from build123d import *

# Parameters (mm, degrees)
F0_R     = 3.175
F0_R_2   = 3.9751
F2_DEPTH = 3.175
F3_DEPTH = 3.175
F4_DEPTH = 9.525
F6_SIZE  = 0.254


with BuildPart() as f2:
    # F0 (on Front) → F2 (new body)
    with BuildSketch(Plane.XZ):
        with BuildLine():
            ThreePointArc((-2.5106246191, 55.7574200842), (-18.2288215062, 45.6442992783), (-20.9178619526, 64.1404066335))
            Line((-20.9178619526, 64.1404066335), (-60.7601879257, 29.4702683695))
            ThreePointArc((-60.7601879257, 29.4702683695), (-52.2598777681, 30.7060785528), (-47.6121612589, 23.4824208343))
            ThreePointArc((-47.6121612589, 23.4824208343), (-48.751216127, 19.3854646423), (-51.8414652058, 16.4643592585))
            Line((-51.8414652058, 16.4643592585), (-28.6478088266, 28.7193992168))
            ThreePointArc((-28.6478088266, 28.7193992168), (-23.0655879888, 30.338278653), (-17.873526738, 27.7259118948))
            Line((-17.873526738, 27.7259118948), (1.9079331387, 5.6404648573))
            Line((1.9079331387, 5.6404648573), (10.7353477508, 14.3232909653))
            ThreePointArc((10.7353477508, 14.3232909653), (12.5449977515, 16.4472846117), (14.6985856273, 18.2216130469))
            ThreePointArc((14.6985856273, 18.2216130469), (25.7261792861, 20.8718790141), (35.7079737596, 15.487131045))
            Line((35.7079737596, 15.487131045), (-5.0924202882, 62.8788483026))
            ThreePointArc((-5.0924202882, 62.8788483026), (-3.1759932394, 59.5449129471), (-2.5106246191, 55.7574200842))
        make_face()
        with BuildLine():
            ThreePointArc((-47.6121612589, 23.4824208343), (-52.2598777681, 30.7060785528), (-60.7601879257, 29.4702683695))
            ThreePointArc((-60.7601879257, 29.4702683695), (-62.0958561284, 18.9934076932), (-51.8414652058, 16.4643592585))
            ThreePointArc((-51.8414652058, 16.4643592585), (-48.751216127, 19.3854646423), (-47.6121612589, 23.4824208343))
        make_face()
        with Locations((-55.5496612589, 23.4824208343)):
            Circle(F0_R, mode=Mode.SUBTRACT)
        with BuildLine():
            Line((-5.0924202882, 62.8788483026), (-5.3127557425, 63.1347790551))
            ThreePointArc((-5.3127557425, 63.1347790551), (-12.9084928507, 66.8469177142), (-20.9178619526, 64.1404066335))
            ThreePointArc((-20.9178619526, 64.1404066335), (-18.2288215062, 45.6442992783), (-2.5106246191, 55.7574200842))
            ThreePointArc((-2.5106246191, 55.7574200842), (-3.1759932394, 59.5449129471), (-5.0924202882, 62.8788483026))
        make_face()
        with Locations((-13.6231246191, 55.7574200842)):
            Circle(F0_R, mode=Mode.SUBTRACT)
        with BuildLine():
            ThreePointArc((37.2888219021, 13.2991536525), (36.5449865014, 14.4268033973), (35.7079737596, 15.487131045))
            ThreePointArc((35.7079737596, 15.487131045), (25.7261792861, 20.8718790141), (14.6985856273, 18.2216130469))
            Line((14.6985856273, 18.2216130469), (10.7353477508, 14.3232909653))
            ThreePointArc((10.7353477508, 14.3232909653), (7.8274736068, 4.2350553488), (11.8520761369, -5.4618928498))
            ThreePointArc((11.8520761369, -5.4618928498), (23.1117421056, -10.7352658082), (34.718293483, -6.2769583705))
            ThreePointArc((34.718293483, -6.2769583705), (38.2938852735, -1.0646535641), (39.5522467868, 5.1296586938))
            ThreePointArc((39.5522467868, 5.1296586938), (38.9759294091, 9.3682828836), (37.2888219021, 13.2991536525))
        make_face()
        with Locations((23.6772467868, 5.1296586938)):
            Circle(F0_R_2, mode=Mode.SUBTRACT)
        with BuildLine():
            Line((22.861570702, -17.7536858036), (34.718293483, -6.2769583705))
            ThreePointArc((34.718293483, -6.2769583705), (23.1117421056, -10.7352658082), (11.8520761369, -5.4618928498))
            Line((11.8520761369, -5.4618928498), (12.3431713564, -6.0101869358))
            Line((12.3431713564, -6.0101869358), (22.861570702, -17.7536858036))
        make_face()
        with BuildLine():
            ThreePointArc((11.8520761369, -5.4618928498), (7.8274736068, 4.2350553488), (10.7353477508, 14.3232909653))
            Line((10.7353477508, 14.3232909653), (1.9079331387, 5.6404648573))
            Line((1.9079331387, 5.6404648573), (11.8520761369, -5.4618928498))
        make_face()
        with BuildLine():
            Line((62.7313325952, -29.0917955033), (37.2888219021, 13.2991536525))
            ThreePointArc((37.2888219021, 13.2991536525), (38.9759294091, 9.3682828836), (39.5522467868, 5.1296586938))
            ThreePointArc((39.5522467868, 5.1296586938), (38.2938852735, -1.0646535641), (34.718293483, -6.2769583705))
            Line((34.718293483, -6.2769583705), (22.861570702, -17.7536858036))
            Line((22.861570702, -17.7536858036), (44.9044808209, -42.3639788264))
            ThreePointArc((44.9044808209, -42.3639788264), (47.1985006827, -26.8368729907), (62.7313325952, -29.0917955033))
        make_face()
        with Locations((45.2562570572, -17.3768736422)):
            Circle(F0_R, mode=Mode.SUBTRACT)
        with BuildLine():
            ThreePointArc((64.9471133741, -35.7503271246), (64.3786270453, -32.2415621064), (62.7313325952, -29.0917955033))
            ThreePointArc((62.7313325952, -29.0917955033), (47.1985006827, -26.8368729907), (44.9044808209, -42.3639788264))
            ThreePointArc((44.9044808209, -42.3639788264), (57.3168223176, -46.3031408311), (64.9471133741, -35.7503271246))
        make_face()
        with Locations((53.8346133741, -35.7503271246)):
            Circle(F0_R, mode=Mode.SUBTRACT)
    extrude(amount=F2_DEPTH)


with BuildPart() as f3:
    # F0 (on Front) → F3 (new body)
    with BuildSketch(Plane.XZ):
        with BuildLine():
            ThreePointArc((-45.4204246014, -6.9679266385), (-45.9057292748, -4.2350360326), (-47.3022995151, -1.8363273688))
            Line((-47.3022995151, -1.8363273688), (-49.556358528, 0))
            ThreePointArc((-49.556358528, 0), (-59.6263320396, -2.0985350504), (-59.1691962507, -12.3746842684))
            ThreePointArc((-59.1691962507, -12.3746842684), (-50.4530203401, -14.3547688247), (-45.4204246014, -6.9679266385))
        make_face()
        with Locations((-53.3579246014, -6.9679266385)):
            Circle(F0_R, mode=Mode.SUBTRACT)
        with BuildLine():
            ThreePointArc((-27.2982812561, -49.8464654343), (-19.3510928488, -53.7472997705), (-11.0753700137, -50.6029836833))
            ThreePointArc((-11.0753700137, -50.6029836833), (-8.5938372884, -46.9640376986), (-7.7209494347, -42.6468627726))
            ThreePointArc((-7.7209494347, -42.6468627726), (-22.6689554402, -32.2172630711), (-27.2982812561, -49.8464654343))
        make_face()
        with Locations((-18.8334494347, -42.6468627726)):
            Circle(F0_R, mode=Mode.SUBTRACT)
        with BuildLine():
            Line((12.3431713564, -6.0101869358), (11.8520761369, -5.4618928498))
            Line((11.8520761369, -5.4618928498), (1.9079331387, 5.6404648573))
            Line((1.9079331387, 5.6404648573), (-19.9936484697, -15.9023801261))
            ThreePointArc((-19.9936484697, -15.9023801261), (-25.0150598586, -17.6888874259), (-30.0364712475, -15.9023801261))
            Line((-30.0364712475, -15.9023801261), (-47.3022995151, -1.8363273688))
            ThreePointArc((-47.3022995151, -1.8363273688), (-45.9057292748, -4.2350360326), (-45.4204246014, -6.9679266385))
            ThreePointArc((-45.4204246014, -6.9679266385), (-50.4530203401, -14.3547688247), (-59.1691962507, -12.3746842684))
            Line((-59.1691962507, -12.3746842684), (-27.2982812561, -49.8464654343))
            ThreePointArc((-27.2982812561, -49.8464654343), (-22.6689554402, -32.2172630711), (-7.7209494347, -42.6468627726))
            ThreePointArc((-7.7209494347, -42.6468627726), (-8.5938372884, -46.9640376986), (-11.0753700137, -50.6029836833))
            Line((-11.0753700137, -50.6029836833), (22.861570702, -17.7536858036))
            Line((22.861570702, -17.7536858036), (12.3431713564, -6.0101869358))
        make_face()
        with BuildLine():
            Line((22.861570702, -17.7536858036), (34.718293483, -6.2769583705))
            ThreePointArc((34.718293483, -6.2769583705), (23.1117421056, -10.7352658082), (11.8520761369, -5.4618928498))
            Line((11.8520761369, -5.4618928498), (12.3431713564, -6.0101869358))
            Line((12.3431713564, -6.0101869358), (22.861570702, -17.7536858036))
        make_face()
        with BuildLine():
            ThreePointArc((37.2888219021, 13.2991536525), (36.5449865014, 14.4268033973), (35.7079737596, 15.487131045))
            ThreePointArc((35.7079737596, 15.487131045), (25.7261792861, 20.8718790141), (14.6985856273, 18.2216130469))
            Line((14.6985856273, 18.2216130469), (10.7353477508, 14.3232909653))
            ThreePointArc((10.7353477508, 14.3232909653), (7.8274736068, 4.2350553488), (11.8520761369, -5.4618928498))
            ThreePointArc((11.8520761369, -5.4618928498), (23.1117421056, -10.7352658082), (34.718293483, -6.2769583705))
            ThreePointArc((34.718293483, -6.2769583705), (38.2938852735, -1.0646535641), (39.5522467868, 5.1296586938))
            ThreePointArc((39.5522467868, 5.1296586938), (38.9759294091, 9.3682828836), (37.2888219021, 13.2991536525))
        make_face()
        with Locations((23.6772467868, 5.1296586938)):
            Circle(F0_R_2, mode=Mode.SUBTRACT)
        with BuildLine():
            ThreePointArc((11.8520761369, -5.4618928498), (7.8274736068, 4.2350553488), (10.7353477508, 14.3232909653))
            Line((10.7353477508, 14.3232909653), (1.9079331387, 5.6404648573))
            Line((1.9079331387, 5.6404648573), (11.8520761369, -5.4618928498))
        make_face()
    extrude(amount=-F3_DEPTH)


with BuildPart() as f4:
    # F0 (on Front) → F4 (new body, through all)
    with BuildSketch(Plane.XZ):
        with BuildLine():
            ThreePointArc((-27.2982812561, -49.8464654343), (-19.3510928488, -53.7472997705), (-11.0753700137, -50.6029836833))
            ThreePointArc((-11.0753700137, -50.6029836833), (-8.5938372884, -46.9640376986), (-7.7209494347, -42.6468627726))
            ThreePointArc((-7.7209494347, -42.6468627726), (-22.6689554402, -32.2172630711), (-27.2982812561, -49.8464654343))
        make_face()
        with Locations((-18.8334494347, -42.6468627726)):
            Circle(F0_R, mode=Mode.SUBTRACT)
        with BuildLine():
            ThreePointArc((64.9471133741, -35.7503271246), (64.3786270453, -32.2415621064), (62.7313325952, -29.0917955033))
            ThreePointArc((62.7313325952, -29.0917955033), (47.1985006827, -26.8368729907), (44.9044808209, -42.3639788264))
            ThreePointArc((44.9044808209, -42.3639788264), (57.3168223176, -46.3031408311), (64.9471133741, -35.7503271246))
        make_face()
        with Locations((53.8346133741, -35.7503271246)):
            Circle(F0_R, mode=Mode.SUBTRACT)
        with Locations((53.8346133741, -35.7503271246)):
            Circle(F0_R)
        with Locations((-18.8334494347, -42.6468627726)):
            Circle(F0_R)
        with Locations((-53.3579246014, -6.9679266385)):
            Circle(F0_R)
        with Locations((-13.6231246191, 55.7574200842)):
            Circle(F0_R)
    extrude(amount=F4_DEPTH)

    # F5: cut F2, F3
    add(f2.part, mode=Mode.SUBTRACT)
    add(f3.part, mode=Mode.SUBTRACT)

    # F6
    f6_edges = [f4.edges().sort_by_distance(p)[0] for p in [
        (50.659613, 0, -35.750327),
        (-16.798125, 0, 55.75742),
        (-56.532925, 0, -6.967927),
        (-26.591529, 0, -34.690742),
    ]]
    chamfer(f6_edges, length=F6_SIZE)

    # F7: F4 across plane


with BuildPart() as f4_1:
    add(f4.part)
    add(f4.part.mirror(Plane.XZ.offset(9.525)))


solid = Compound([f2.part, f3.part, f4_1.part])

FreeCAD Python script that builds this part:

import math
import FreeCAD as App
import Part
import Sketcher
from FreeCAD import Vector
Q = App.Units.Quantity


def edges_at(feature, points):
    """Names of the edges that pass closest to the given points."""
    edges = feature.Shape.Edges
    near = lambda p: min(range(len(edges)), key=lambda i: edges[i].distToShape(Part.Vertex(*p))[0])
    return sorted({f"Edge{near(p) + 1}" for p in points})

doc = App.newDocument("Part")
body = doc.addObject("PartDesign::Body", "Body")

sketch1 = body.newObject("Sketcher::SketchObject", "Sketch")
sketch1.AttachmentSupport = (doc.getObject("XZ_Plane"), [""])
sketch1.MapMode = "FlatFace"
sketch1.addGeometry(Part.LineSegment(Vector(-17.873527, 27.725912, 0), Vector(11.852076, -5.461893, 0)), False)
sketch1.addGeometry(Part.LineSegment(Vector(11.852076, -5.461893, 0), Vector(12.343171, -6.010187, 0)), False)
sketch1.addGeometry(Part.LineSegment(Vector(12.343171, -6.010187, 0), Vector(22.861571, -17.753686, 0)), False)
sketch1.addGeometry(Part.LineSegment(Vector(22.861571, -17.753686, 0), Vector(44.904481, -42.363979, 0)), False)
sketch1.addGeometry(Part.ArcOfCircle(Part.Circle(Vector(53.834613, -35.750327, 0), Vector(0, 0, 1), 11.1125), math.radians(-143.47637), math.radians(0)), False)
sketch1.addGeometry(Part.ArcOfCircle(Part.Circle(Vector(53.834613, -35.750327, 0), Vector(0, 0, 1), 11.1125), math.radians(0), math.radians(36.812119)), False)
sketch1.addGeometry(Part.LineSegment(Vector(62.731333, -29.091796, 0), Vector(37.288822, 13.299154, 0)), False)
sketch1.addGeometry(Part.ArcOfCircle(Part.Circle(Vector(23.677247, 5.129659, 0), Vector(0, 0, 1), 15.875), math.radians(30.971648), math.radians(40.725761)), False)
sketch1.addGeometry(Part.LineSegment(Vector(35.707974, 15.487131, 0), Vector(-5.09242, 62.878848, 0)), False)
sketch1.addGeometry(Part.LineSegment(Vector(-5.09242, 62.878848, 0), Vector(-5.312756, 63.134779, 0)), False)
sketch1.addGeometry(Part.ArcOfCircle(Part.Circle(Vector(-13.623125, 55.75742, 0), Vector(0, 0, 1), 11.1125), math.radians(41.596407), math.radians(131.029256)), False)
sketch1.addGeometry(Part.LineSegment(Vector(-20.917862, 64.140407, 0), Vector(-60.760188, 29.470268, 0)), False)
sketch1.addGeometry(Part.ArcOfCircle(Part.Circle(Vector(-55.549661, 23.482421, 0), Vector(0, 0, 1), 7.9375), math.radians(131.029256), math.radians(297.85103)), False)
sketch1.addGeometry(Part.LineSegment(Vector(-51.841465, 16.464359, 0), Vector(-28.647809, 28.719399, 0)), False)
sketch1.addGeometry(Part.ArcOfCircle(Part.Circle(Vector(-23.795572, 22.421663, 0), Vector(0, 0, 1), 7.9502), math.radians(41.85012), math.radians(127.613285)), False)
sketch1.addGeometry(Part.Circle(Vector(53.834613, -35.750327, 0), Vector(0, 0, 1), 3.175), False)
sketch1.addGeometry(Part.Circle(Vector(45.256257, -17.376874, 0), Vector(0, 0, 1), 3.175), False)
sketch1.addGeometry(Part.Circle(Vector(23.677247, 5.129659, 0), Vector(0, 0, 1), 3.9751), False)
sketch1.addGeometry(Part.Circle(Vector(-55.549661, 23.482421, 0), Vector(0, 0, 1), 3.175), False)
sketch1.addGeometry(Part.Circle(Vector(-13.623125, 55.75742, 0), Vector(0, 0, 1), 3.175), False)
sketch1.addGeometry(Part.LineSegment(Vector(14.698586, 18.221613, 0), Vector(10.735348, 14.323291, 0)), False)
sketch1.addGeometry(Part.ArcOfCircle(Part.Circle(Vector(23.677247, 5.129659, 0), Vector(0, 0, 1), 15.875), math.radians(124.442921), math.radians(144.610875)), False)
sketch1.addConstraint(Sketcher.Constraint("Coincident", 0, 2, 1, 1))
sketch1.addConstraint(Sketcher.Constraint("Coincident", 1, 2, 2, 1))
sketch1.addConstraint(Sketcher.Constraint("Coincident", 2, 2, 3, 1))
sketch1.addConstraint(Sketcher.Constraint("Coincident", 3, 2, 4, 1))
sketch1.addConstraint(Sketcher.Constraint("Tangent", 4, 2, 5, 1))
sketch1.addConstraint(Sketcher.Constraint("Coincident", 5, 2, 6, 1))
sketch1.addConstraint(Sketcher.Constraint("Tangent", 6, 2, 7, 1))
sketch1.addConstraint(Sketcher.Constraint("Tangent", 7, 2, 8, 1))
sketch1.addConstraint(Sketcher.Constraint("Coincident", 8, 2, 9, 1))
sketch1.addConstraint(Sketcher.Constraint("Coincident", 9, 2, 10, 1))
sketch1.addConstraint(Sketcher.Constraint("Tangent", 10, 2, 11, 1))
sketch1.addConstraint(Sketcher.Constraint("Tangent", 11, 2, 12, 1))
sketch1.addConstraint(Sketcher.Constraint("Tangent", 12, 2, 13, 1))
sketch1.addConstraint(Sketcher.Constraint("Coincident", 13, 2, 14, 2))
sketch1.addConstraint(Sketcher.Constraint("Tangent", 14, 1, 0, 1))
sketch1.addConstraint(Sketcher.Constraint("Coincident", 20, 1, 21, 1))
sketch1.addConstraint(Sketcher.Constraint("Coincident", 21, 2, 20, 2))
sketch1.addConstraint(Sketcher.Constraint("Coincident", 15, 3, 4, 3))
sketch1.addConstraint(Sketcher.Constraint("Coincident", 17, 3, 7, 3))
sketch1.addConstraint(Sketcher.Constraint("Coincident", 18, 3, 12, 3))
sketch1.addConstraint(Sketcher.Constraint("Coincident", 19, 3, 10, 3))
sketch1.addConstraint(Sketcher.Constraint("Coincident", 21, 3, 7, 3))
sketch1.addConstraint(Sketcher.Constraint("Equal", 4, 5))
sketch1.addConstraint(Sketcher.Constraint("Equal", 5, 10))
sketch1.addConstraint(Sketcher.Constraint("Equal", 15, 16))
sketch1.addConstraint(Sketcher.Constraint("Equal", 16, 18))
sketch1.addConstraint(Sketcher.Constraint("Equal", 18, 19))
sketch1.addConstraint(Sketcher.Constraint("Equal", 7, 21))
sketch1.addConstraint(Sketcher.Constraint("Parallel", 0, 1))
sketch1.addConstraint(Sketcher.Constraint("Parallel", 1, 2))
sketch1.addConstraint(Sketcher.Constraint("Parallel", 2, 3))
sketch1.addConstraint(Sketcher.Constraint("Parallel", 8, 9))
sketch1.addConstraint(Sketcher.Constraint("Horizontal", 15, 3, 4, 2))
sketch1.addConstraint(Sketcher.Constraint("Diameter", 15, Q("0.25 in")))
sketch1.addConstraint(Sketcher.Constraint("Diameter", 17, Q("0.313 in")))
sketch1.addConstraint(Sketcher.Constraint("Radius", 4, Q("0.4375 in")))
sketch1.addConstraint(Sketcher.Constraint("Radius", 7, Q("0.625 in")))
sketch1.addConstraint(Sketcher.Constraint("Radius", 12, Q("0.3125 in")))
sketch1.addConstraint(Sketcher.Constraint("Radius", 14, Q("0.313 in")))
sketch1.addConstraint(Sketcher.Constraint("DistanceX", 11, 2, 14, 3, Q("1.4552998 in")))
sketch1.addConstraint(Sketcher.Constraint("DistanceY", -1, 1, 13, 2, Q("28.719399 mm")))
sketch1.addConstraint(Sketcher.Constraint("DistanceY", 12, 3, 10, 3, Q("32.274999 mm")))
sketch1.addConstraint(Sketcher.Constraint("DistanceX", 1, 2, 2, 2, Q("10.518399 mm")))
sketch1.addConstraint(Sketcher.Constraint("DistanceY", 2, 2, 1, 2, Q("11.743499 mm")))
sketch1.addConstraint(Sketcher.Constraint("DistanceX", 21, 2, 21, 3, Q("12.941899 mm")))
sketch1.addConstraint(Sketcher.Constraint("Distance", 0, Q("44.553808 mm")))
sketch1.addConstraint(Sketcher.Constraint("Distance", 1, Q("0.736071 mm")))
sketch1.addConstraint(Sketcher.Constraint("Distance", 3, Q("33.038711 mm")))
sketch1.addConstraint(Sketcher.Constraint("Distance", 9, Q("0.33771 mm")))
sketch1.addConstraint(Sketcher.Constraint("Distance", 11, Q("52.815049 mm")))
sketch1.addConstraint(Sketcher.Constraint("Distance", 20, Q("5.559152 mm")))
sketch1.addConstraint(Sketcher.Constraint("DistanceY", -1, 1, 7, 3, Q("5.129659 mm")))
sketch1.addConstraint(Sketcher.Constraint("DistanceY", -1, 1, 10, 3, Q("55.75742 mm")))
sketch1.addConstraint(Sketcher.Constraint("DistanceX", 12, 3, -1, 1, Q("55.549661 mm")))
sketch1.addConstraint(Sketcher.Constraint("DistanceY", 3, 2, -1, 1, Q("42.363979 mm")))
sketch1.addConstraint(Sketcher.Constraint("DistanceX", -1, 1, 6, 2, Q("37.288822 mm")))
sketch1.addConstraint(Sketcher.Constraint("DistanceX", 8, 2, -1, 1, Q("5.09242 mm")))
sketch1.addConstraint(Sketcher.Constraint("DistanceX", 10, 3, 7, 3, Q("37.300371 mm")))
sketch1.addConstraint(Sketcher.Constraint("DistanceY", 4, 3, 14, 3, Q("58.17199 mm")))
sketch1.addConstraint(Sketcher.Constraint("DistanceX", 7, 3, 16, 3, Q("21.57901 mm")))
sketch1.addConstraint(Sketcher.Constraint("DistanceY", 16, 3, 0, 2, Q("11.914981 mm")))
pad1 = body.newObject("PartDesign::Pad", "Pad")
pad1.Profile = sketch1
pad1.Length = Q("0.125 in")
body2 = doc.addObject("PartDesign::Body", "Body001")

sketch2 = body2.newObject("Sketcher::SketchObject", "Sketch001")
sketch2.AttachmentSupport = (doc.getObject("XZ_Plane001"), [""])
sketch2.MapMode = "FlatFace"
sketch2.addGeometry(Part.LineSegment(Vector(-47.3023, -1.836327, 0), Vector(-49.556359, 0, 0)), False)
sketch2.addGeometry(Part.ArcOfCircle(Part.Circle(Vector(-53.357925, -6.967927, 0), Vector(0, 0, 1), 7.9375), math.radians(61.383971), math.radians(222.93485)), False)
sketch2.addGeometry(Part.LineSegment(Vector(-59.169196, -12.374684, 0), Vector(-27.298281, -49.846465, 0)), False)
sketch2.addGeometry(Part.ArcOfCircle(Part.Circle(Vector(-18.833449, -42.646863, 0), Vector(0, 0, 1), 11.1125), math.radians(-139.617802), math.radians(-45.722044)), False)
sketch2.addGeometry(Part.LineSegment(Vector(-11.07537, -50.602984, 0), Vector(22.861571, -17.753686, 0)), False)
sketch2.addGeometry(Part.LineSegment(Vector(22.861571, -17.753686, 0), Vector(34.718293, -6.276958, 0)), False)
sketch2.addGeometry(Part.ArcOfCircle(Part.Circle(Vector(23.677247, 5.129659, 0), Vector(0, 0, 1), 15.875), math.radians(-45.933005), math.radians(30.971648)), False)
sketch2.addGeometry(Part.ArcOfCircle(Part.Circle(Vector(23.677247, 5.129659, 0), Vector(0, 0, 1), 15.875), math.radians(30.971648), math.radians(40.725761)), False)
sketch2.addGeometry(Part.ArcOfCircle(Part.Circle(Vector(23.677247, 5.129659, 0), Vector(0, 0, 1), 15.875), math.radians(40.725761), math.radians(124.442921)), False)
sketch2.addGeometry(Part.LineSegment(Vector(14.698586, 18.221613, 0), Vector(10.735348, 14.323291, 0)), False)
sketch2.addGeometry(Part.LineSegment(Vector(10.735348, 14.323291, 0), Vector(1.907933, 5.640465, 0)), False)
sketch2.addGeometry(Part.LineSegment(Vector(1.907933, 5.640465, 0), Vector(-19.993648, -15.90238, 0)), False)
sketch2.addGeometry(Part.ArcOfCircle(Part.Circle(Vector(-25.01506, -9.738687, 0), Vector(0, 0, 1), 7.9502), math.radians(-129.168871), math.radians(-50.831129)), False)
sketch2.addGeometry(Part.LineSegment(Vector(-30.036471, -15.90238, 0), Vector(-47.3023, -1.836327, 0)), False)
sketch2.addGeometry(Part.Circle(Vector(-18.833449, -42.646863, 0), Vector(0, 0, 1), 3.175), False)
sketch2.addGeometry(Part.Circle(Vector(-53.357925, -6.967927, 0), Vector(0, 0, 1), 3.175), False)
sketch2.addGeometry(Part.Circle(Vector(23.677247, 5.129659, 0), Vector(0, 0, 1), 3.9751), False)
sketch2.addConstraint(Sketcher.Constraint("Coincident", 0, 2, 1, 1))
sketch2.addConstraint(Sketcher.Constraint("Coincident", 1, 2, 2, 1))
sketch2.addConstraint(Sketcher.Constraint("Coincident", 2, 2, 3, 1))
sketch2.addConstraint(Sketcher.Constraint("Coincident", 3, 2, 4, 1))
sketch2.addConstraint(Sketcher.Constraint("Coincident", 4, 2, 5, 1))
sketch2.addConstraint(Sketcher.Constraint("Coincident", 5, 2, 6, 1))
sketch2.addConstraint(Sketcher.Constraint("Coincident", 6, 2, 7, 1))
sketch2.addConstraint(Sketcher.Constraint("Coincident", 7, 2, 8, 1))
sketch2.addConstraint(Sketcher.Constraint("Coincident", 8, 2, 9, 1))
sketch2.addConstraint(Sketcher.Constraint("Coincident", 9, 2, 10, 1))
sketch2.addConstraint(Sketcher.Constraint("Coincident", 10, 2, 11, 1))
sketch2.addConstraint(Sketcher.Constraint("Coincident", 11, 2, 12, 2))
sketch2.addConstraint(Sketcher.Constraint("Coincident", 12, 1, 13, 1))
sketch2.addConstraint(Sketcher.Constraint("Coincident", 13, 2, 0, 1))
sketch2.addConstraint(Sketcher.Constraint("Coincident", 7, 3, 6, 3))
sketch2.addConstraint(Sketcher.Constraint("Coincident", 8, 3, 6, 3))
sketch2.addConstraint(Sketcher.Constraint("Coincident", 14, 3, 3, 3))
sketch2.addConstraint(Sketcher.Constraint("Coincident", 15, 3, 1, 3))
sketch2.addConstraint(Sketcher.Constraint("Coincident", 16, 3, 6, 3))
sketch2.addConstraint(Sketcher.Constraint("PointOnObject", 0, 2, -1))
sketch2.addConstraint(Sketcher.Constraint("Diameter", 14, Q("0.25 in")))
sketch2.addConstraint(Sketcher.Constraint("Diameter", 15, Q("0.25 in")))
sketch2.addConstraint(Sketcher.Constraint("Diameter", 16, Q("0.313 in")))
sketch2.addConstraint(Sketcher.Constraint("Radius", 1, Q("0.3125 in")))
sketch2.addConstraint(Sketcher.Constraint("Radius", 3, Q("0.4375 in")))
sketch2.addConstraint(Sketcher.Constraint("Radius", 6, Q("0.625 in")))
sketch2.addConstraint(Sketcher.Constraint("Radius", 12, Q("0.313 in")))
sketch2.addConstraint(Sketcher.Constraint("DistanceX", 3, 2, 4, 2, Q("1.3361 in")))
sketch2.addConstraint(Sketcher.Constraint("DistanceX", 4, 2, 5, 2, Q("0.4668001 in")))
sketch2.addConstraint(Sketcher.Constraint("DistanceX", 13, 2, -1, 1, Q("47.3023 mm")))
sketch2.addConstraint(Sketcher.Constraint("DistanceX", 0, 2, 12, 3, Q("24.541299 mm")))
sketch2.addConstraint(Sketcher.Constraint("DistanceX", 9, 2, 6, 3, Q("12.941899 mm")))
sketch2.addConstraint(Sketcher.Constraint("DistanceX", 11, 2, 3, 3, Q("1.160199 mm")))
sketch2.addConstraint(Sketcher.Constraint("DistanceY", 15, 3, 13, 2, Q("5.131599 mm")))
sketch2.addConstraint(Sketcher.Constraint("Distance", 5, Q("16.501429 mm")))
sketch2.addConstraint(Sketcher.Constraint("Distance", 9, Q("5.559152 mm")))
sketch2.addConstraint(Sketcher.Constraint("Distance", 13, Q("22.270219 mm")))
sketch2.addConstraint(Sketcher.Constraint("DistanceX", 3, 3, -1, 1, Q("18.833449 mm")))
sketch2.addConstraint(Sketcher.Constraint("DistanceY", -1, 1, 6, 3, Q("5.129659 mm")))
sketch2.addConstraint(Sketcher.Constraint("DistanceX", 12, 3, -1, 1, Q("25.01506 mm")))
sketch2.addConstraint(Sketcher.Constraint("DistanceX", 2, 2, -1, 1, Q("27.298281 mm")))
sketch2.addConstraint(Sketcher.Constraint("DistanceX", 3, 2, -1, 1, Q("11.07537 mm")))
sketch2.addConstraint(Sketcher.Constraint("DistanceY", 5, 2, -1, 1, Q("6.276958 mm")))
sketch2.addConstraint(Sketcher.Constraint("DistanceX", -1, 1, 6, 2, Q("37.288822 mm")))
sketch2.addConstraint(Sketcher.Constraint("DistanceY", -1, 1, 7, 2, Q("15.487131 mm")))
sketch2.addConstraint(Sketcher.Constraint("DistanceY", -1, 1, 9, 2, Q("14.323291 mm")))
sketch2.addConstraint(Sketcher.Constraint("DistanceY", 11, 2, -1, 1, Q("15.90238 mm")))
sketch2.addConstraint(Sketcher.Constraint("DistanceX", 12, 1, -1, 1, Q("30.036471 mm")))
sketch2.addConstraint(Sketcher.Constraint("DistanceY", 3, 3, 6, 3, Q("47.776521 mm")))
sketch2.addConstraint(Sketcher.Constraint("DistanceX", 1, 2, 1, 3, Q("5.811272 mm")))
sketch2.addConstraint(Sketcher.Constraint("DistanceY", 10, 2, 8, 2, Q("12.581148 mm")))
sketch2.addConstraint(Sketcher.Constraint("DistanceX", 11, 2, 10, 2, Q("21.901582 mm")))
pad2 = body2.newObject("PartDesign::Pad", "Pad001")
pad2.Profile = sketch2
pad2.Length = Q("0.125 in")
pad2.Reversed = True
body3 = doc.addObject("PartDesign::Body", "Body002")
body3.AllowCompound = True

sketch3 = body3.newObject("Sketcher::SketchObject", "Sketch002")
sketch3.AttachmentSupport = (doc.getObject("XZ_Plane002"), [""])
sketch3.MapMode = "FlatFace"
sketch3.addGeometry(Part.ArcOfCircle(Part.Circle(Vector(-18.833449, -42.646863, 0), Vector(0, 0, 1), 11.1125), math.radians(-139.617802), math.radians(-45.722044)), False)
sketch3.addGeometry(Part.ArcOfCircle(Part.Circle(Vector(-18.833449, -42.646863, 0), Vector(0, 0, 1), 11.1125), math.radians(-45.722044), math.radians(0)), False)
sketch3.addGeometry(Part.ArcOfCircle(Part.Circle(Vector(-18.833449, -42.646863, 0), Vector(0, 0, 1), 11.1125), math.radians(0), math.radians(220.382198)), False)
sketch3.addGeometry(Part.ArcOfCircle(Part.Circle(Vector(53.834613, -35.750327, 0), Vector(0, 0, 1), 11.1125), math.radians(0), math.radians(36.812119)), False)
sketch3.addGeometry(Part.ArcOfCircle(Part.Circle(Vector(53.834613, -35.750327, 0), Vector(0, 0, 1), 11.1125), math.radians(36.812119), math.radians(216.52363)), False)
sketch3.addGeometry(Part.ArcOfCircle(Part.Circle(Vector(53.834613, -35.750327, 0), Vector(0, 0, 1), 11.1125), math.radians(-143.47637), math.radians(0)), False)
sketch3.addGeometry(Part.Circle(Vector(-53.357925, -6.967927, 0), Vector(0, 0, 1), 3.175), False)
sketch3.addGeometry(Part.Circle(Vector(-13.623125, 55.75742, 0), Vector(0, 0, 1), 3.175), False)
sketch3.addConstraint(Sketcher.Constraint("Tangent", 0, 2, 1, 1))
sketch3.addConstraint(Sketcher.Constraint("Tangent", 1, 2, 2, 1))
sketch3.addConstraint(Sketcher.Constraint("Tangent", 2, 2, 0, 1))
sketch3.addConstraint(Sketcher.Constraint("Tangent", 3, 2, 4, 1))
sketch3.addConstraint(Sketcher.Constraint("Tangent", 4, 2, 5, 1))
sketch3.addConstraint(Sketcher.Constraint("Tangent", 5, 2, 3, 1))
sketch3.addConstraint(Sketcher.Constraint("Equal", 2, 3))
sketch3.addConstraint(Sketcher.Constraint("Equal", 6, 7))
sketch3.addConstraint(Sketcher.Constraint("Horizontal", 2, 3, 1, 2))
sketch3.addConstraint(Sketcher.Constraint("Horizontal", 4, 3, 5, 2))
sketch3.addConstraint(Sketcher.Constraint("Diameter", 6, Q("0.25 in")))
sketch3.addConstraint(Sketcher.Constraint("Radius", 0, Q("0.4375 in")))
sketch3.addConstraint(Sketcher.Constraint("DistanceY", 4, 3, 6, 3, Q("28.7824 mm")))
sketch3.addConstraint(Sketcher.Constraint("DistanceX", 6, 3, 7, 3, Q("39.7348 mm")))
sketch3.addConstraint(Sketcher.Constraint("DistanceX", 0, 3, -1, 1, Q("18.833449 mm")))
sketch3.addConstraint(Sketcher.Constraint("DistanceY", -1, 1, 7, 3, Q("55.75742 mm")))
sketch3.addConstraint(Sketcher.Constraint("DistanceX", 0, 2, -1, 1, Q("11.07537 mm")))
sketch3.addConstraint(Sketcher.Constraint("DistanceX", 2, 2, -1, 1, Q("27.298281 mm")))
sketch3.addConstraint(Sketcher.Constraint("DistanceX", -1, 1, 4, 2, Q("44.904481 mm")))
sketch3.addConstraint(Sketcher.Constraint("DistanceY", 4, 2, -1, 1, Q("42.363979 mm")))
sketch3.addConstraint(Sketcher.Constraint("DistanceX", 3, 3, 3, 2, Q("8.896719 mm")))
sketch3.addConstraint(Sketcher.Constraint("DistanceY", 0, 2, 3, 2, Q("21.511188 mm")))
sketch3.addConstraint(Sketcher.Constraint("DistanceY", 4, 2, 4, 3, Q("6.613652 mm")))
sketch3.addConstraint(Sketcher.Constraint("DistanceX", 6, 3, -1, 1, Q("53.357925 mm")))
pad3 = body3.newObject("PartDesign::Pad", "Pad002")
pad3.Profile = sketch3
pad3.Length = Q("0.375 in")
doc.recompute()

body4 = doc.addObject("PartDesign::Body", "Body003")
body4.BaseFeature = body
boolean = body3.newObject("PartDesign::Boolean", "Boolean")
boolean.Type = "Cut"
boolean.addObjects([body4])
doc.recompute()

body5 = doc.addObject("PartDesign::Body", "Body004")
body5.BaseFeature = body2
boolean2 = body3.newObject("PartDesign::Boolean", "Boolean001")
boolean2.Type = "Cut"
boolean2.addObjects([body5])
doc.recompute()

chamfer = body3.newObject("PartDesign::Chamfer", "Chamfer")
chamfer.Base = (boolean2, edges_at(boolean2, [
    (50.66, 0, -35.75),
    (-16.798, 0, 55.757),
    (-56.533, 0, -6.968),
    (-22.669, 0, -32.217),
]))
chamfer.Size = Q("0.01 in")
body6 = doc.addObject("PartDesign::Body", "Body005")
body6.AllowCompound = True
doc.recompute()

body6.BaseFeature = body3
doc.recompute()

mirroring = doc.addObject("Part::Mirroring", "Mirroring")
mirroring.Source = body3
mirroring.Base = Vector(0, -9.525, 0)
mirroring.Normal = Vector(0, -1, 0)
body7 = doc.addObject("PartDesign::Body", "Body006")
body7.BaseFeature = mirroring
boolean3 = body6.newObject("PartDesign::Boolean", "Boolean002")
boolean3.Type = "Fuse"
boolean3.addObjects([body7])
doc.recompute()

doc.recompute()
